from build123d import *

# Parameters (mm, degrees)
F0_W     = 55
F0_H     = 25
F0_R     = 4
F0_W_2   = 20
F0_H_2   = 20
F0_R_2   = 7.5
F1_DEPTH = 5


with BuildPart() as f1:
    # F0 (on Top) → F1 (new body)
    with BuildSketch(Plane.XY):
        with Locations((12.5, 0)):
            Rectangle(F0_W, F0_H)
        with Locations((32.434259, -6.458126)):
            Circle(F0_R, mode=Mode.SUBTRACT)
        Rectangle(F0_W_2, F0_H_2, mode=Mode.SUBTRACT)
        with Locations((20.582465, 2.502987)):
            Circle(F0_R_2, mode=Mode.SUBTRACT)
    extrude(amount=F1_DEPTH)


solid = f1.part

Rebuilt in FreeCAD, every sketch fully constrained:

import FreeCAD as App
import Part
import Sketcher

V = App.Vector

doc = App.newDocument("Part")
params = doc.addObject("Spreadsheet::Sheet", "Params")
for row, (alias, value) in enumerate([
    ("sketch1_diameter", "8 mm"),
    ("sketch1_diameter2", "15 mm"),
    ("sketch1_width", "55 mm"),
    ("sketch1_width2", "20 mm"),
    ("sketch1_height", "25 mm"),
    ("pad1_length", "5 mm"),
], start=1):
    params.set(f"A{row}", alias)
    params.set(f"B{row}", "=" + value)
    params.setAlias(f"B{row}", alias)

body = doc.addObject("PartDesign::Body", "Body")

sketch1 = doc.addObject("Sketcher::SketchObject", "Sketch")
body.addObject(sketch1)
sketch1.AttachmentSupport = (doc.XY_Plane, [""])
sketch1.MapMode = "FlatFace"
sketch1.addGeometry(Part.LineSegment(V(-15, 12.5, 0), V(-15, -12.5, 0)), False)
sketch1.addGeometry(Part.LineSegment(V(-15, -12.5, 0), V(40, -12.5, 0)), False)
sketch1.addGeometry(Part.LineSegment(V(40, -12.5, 0), V(40, 12.5, 0)), False)
sketch1.addGeometry(Part.LineSegment(V(40, 12.5, 0), V(-15, 12.5, 0)), False)
sketch1.addGeometry(Part.Circle(V(32.4, -6.5, 0), V(0, 0, 1), 4), False)
sketch1.addGeometry(Part.LineSegment(V(10, -10, 0), V(-10, -10, 0)), False)
sketch1.addGeometry(Part.LineSegment(V(-10, -10, 0), V(-10, 10, 0)), False)
sketch1.addGeometry(Part.LineSegment(V(-10, 10, 0), V(10, 10, 0)), False)
sketch1.addGeometry(Part.LineSegment(V(10, 10, 0), V(10, -10, 0)), False)
sketch1.addGeometry(Part.Circle(V(20.6, 2.5, 0), V(0, 0, 1), 7.5), False)
sketch1.addConstraint(Sketcher.Constraint("Coincident", 0, 2, 1, 1))
sketch1.addConstraint(Sketcher.Constraint("Coincident", 1, 2, 2, 1))
sketch1.addConstraint(Sketcher.Constraint("Coincident", 2, 2, 3, 1))
sketch1.addConstraint(Sketcher.Constraint("Coincident", 3, 2, 0, 1))
sketch1.addConstraint(Sketcher.Constraint("Coincident", 5, 2, 6, 1))
sketch1.addConstraint(Sketcher.Constraint("Coincident", 6, 2, 7, 1))
sketch1.addConstraint(Sketcher.Constraint("Coincident", 7, 2, 8, 1))
sketch1.addConstraint(Sketcher.Constraint("Coincident", 8, 2, 5, 1))
sketch1.addConstraint(Sketcher.Constraint("Vertical", 0))
sketch1.addConstraint(Sketcher.Constraint("Horizontal", 1))
sketch1.addConstraint(Sketcher.Constraint("Vertical", 2))
sketch1.addConstraint(Sketcher.Constraint("Horizontal", 3))
sketch1.addConstraint(Sketcher.Constraint("Horizontal", 5))
sketch1.addConstraint(Sketcher.Constraint("Vertical", 6))
sketch1.addConstraint(Sketcher.Constraint("Horizontal", 7))
sketch1.addConstraint(Sketcher.Constraint("Vertical", 8))
sketch1.addConstraint(Sketcher.Constraint("Symmetric", 5, 2, 7, 2, -1, 1))
sketch1.addConstraint(Sketcher.Constraint("Equal", 7, 6))
sketch1.addConstraint(Sketcher.Constraint("Diameter", 4, 8.0))
sketch1.addConstraint(Sketcher.Constraint("Diameter", 9, 15.0))
sketch1.addConstraint(Sketcher.Constraint("DistanceX", 1, 1, 1, 2, 55.0))
sketch1.addConstraint(Sketcher.Constraint("DistanceX", 5, 2, 5, 1, 20.0))
sketch1.addConstraint(Sketcher.Constraint("DistanceY", 0, 2, 0, 1, 25.0))
sketch1.addConstraint(Sketcher.Constraint("DistanceX", 0, 2, -1, 1, 15.0))
sketch1.addConstraint(Sketcher.Constraint("DistanceY", 0, 2, -1, 1, 12.5))
sketch1.addConstraint(Sketcher.Constraint("DistanceX", -1, 1, 4, 3, 32.434259))
sketch1.addConstraint(Sketcher.Constraint("DistanceY", 4, 3, -1, 1, 6.458126))
sketch1.addConstraint(Sketcher.Constraint("DistanceX", -1, 1, 9, 3, 20.582465))
sketch1.addConstraint(Sketcher.Constraint("DistanceY", -1, 1, 9, 3, 2.502987))
sketch1.setExpression("Constraints[18]", "Params.sketch1_diameter")
sketch1.setExpression("Constraints[19]", "Params.sketch1_diameter2")
sketch1.setExpression("Constraints[20]", "Params.sketch1_width")
sketch1.setExpression("Constraints[21]", "Params.sketch1_width2")
sketch1.setExpression("Constraints[22]", "Params.sketch1_height")
pad1 = doc.addObject("PartDesign::Pad", "Pad")
body.addObject(pad1)
pad1.Profile = sketch1
pad1.setExpression("Length", "Params.pad1_length")

doc.recompute()
